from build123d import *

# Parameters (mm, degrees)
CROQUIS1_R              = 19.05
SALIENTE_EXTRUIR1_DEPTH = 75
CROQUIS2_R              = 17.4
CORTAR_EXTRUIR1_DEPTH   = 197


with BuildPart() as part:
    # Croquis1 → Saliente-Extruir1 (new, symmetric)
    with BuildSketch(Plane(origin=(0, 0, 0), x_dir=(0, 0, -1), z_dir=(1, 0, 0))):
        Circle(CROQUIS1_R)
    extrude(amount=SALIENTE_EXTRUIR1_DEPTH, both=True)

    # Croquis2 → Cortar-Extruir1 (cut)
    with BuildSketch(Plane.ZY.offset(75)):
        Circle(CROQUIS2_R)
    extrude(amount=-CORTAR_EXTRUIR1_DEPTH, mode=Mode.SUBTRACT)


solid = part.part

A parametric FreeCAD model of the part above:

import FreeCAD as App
import Part
import Sketcher
from FreeCAD import Vector

doc = App.newDocument("Part")
body = doc.addObject("PartDesign::Body", "Body")

sketch1 = body.newObject("Sketcher::SketchObject", "Sketch")
sketch1.AttachmentSupport = (doc.getObject("YZ_Plane"), [""])
sketch1.MapMode = "FlatFace"
sketch1.addGeometry(Part.Circle(Vector(0, 0, 0), Vector(0, 0, 1), 19), False)
sketch1.addConstraint([
    Sketcher.Constraint("Coincident", 0, 3, -1, 1),
    Sketcher.Constraint("Diameter", 0, 38.1),
])
pad1 = body.newObject("PartDesign::Pad", "Pad")
pad1.Profile = sketch1
pad1.Length = 150
pad1.Midplane = True

sketch2 = body.newObject("Sketcher::SketchObject", "Sketch001")
sketch2.AttachmentSupport = (doc.getObject("YZ_Plane"), [""])
sketch2.MapMode = "FlatFace"
sketch2.AttachmentOffset = App.Placement(Vector(0, 0, -75), App.Rotation())
sketch2.addGeometry(Part.Circle(Vector(0, 0, 0), Vector(0, 0, 1), 17), False)
sketch2.addConstraint([
    Sketcher.Constraint("Coincident", 0, 3, -1, 1),
    Sketcher.Constraint("Diameter", 0, 34.8),
])
pocket1 = body.newObject("PartDesign::Pocket", "Pocket")
pocket1.Profile = sketch2
pocket1.Length = 197
pocket1.Reversed = True

doc.recompute()
